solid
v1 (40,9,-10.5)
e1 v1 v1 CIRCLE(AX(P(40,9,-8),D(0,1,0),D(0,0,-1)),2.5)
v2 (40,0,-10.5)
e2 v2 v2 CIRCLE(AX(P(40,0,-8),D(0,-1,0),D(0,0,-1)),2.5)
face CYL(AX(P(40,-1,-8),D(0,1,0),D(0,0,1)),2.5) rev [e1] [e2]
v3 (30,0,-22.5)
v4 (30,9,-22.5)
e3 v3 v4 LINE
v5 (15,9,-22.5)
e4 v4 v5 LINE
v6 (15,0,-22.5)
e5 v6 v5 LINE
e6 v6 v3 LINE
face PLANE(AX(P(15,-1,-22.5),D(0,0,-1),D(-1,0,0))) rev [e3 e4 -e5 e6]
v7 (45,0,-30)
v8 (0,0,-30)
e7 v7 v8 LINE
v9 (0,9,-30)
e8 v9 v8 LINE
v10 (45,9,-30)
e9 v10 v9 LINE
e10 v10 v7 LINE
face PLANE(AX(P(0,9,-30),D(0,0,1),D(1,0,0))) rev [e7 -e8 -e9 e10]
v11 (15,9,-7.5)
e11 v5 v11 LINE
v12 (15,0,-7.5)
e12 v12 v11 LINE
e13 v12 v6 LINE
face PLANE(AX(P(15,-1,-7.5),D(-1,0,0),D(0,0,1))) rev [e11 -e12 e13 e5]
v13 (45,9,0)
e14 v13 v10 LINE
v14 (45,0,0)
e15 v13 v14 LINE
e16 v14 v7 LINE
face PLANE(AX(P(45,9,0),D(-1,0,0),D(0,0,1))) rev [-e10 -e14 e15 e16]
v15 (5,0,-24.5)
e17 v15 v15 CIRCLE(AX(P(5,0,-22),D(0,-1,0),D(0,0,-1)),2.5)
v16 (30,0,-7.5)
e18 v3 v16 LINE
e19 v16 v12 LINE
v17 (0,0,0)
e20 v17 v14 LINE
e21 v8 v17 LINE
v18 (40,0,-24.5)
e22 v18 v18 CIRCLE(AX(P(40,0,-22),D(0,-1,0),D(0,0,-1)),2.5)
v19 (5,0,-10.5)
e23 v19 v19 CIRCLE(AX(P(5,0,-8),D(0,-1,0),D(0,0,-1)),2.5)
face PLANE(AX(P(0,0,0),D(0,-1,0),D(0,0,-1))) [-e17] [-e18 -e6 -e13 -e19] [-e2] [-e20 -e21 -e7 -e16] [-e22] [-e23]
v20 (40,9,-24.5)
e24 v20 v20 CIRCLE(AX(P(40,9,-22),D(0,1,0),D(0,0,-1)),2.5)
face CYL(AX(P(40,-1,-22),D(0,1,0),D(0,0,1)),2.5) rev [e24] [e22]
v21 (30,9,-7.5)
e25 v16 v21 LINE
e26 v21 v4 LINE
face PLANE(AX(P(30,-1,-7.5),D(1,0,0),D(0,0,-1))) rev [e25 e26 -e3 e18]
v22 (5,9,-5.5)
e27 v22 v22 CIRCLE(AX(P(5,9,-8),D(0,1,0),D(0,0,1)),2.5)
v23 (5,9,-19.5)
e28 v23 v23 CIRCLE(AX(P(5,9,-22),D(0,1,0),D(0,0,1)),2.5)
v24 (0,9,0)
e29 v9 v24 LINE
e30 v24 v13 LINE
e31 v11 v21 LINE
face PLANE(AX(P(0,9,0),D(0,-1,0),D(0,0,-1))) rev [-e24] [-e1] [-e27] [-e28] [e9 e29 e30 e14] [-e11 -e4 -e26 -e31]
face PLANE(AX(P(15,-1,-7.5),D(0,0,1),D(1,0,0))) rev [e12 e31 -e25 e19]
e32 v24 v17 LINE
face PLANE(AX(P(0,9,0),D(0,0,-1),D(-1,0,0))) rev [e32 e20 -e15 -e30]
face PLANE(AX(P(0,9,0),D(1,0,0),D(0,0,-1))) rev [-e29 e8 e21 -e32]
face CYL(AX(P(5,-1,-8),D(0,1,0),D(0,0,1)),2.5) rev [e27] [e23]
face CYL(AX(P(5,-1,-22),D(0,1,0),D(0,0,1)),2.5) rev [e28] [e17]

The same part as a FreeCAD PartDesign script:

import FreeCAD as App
import Part
import Sketcher
from FreeCAD import Vector
Q = App.Units.Quantity


def add_polygon(sketch, points):
    """Adds a closed chain of lines whose ends are joined by coincident constraints."""
    first, n = sketch.GeometryCount, len(points)
    for a, b in zip(points, points[1:] + points[:1]):
        sketch.addGeometry(Part.LineSegment(App.Vector(*a, 0), App.Vector(*b, 0)), False)
    for i in range(n):
        sketch.addConstraint(Sketcher.Constraint("Coincident", first + i, 2, first + (i + 1) % n, 1))

doc = App.newDocument("Part")
body = doc.addObject("PartDesign::Body", "Body")

# Sketch on XZ plane
sketch1 = body.newObject("Sketcher::SketchObject", "Sketch")
sketch1.AttachmentSupport = (doc.getObject("XZ_Plane"), [""])
sketch1.MapMode = "FlatFace"
add_polygon(sketch1, [(0, -30), (0, 0), (45, 0), (45, -30)])  # lines 0-3
sketch1.addConstraint([
    Sketcher.Constraint("Vertical", 0),
    Sketcher.Constraint("Horizontal", 1),
    Sketcher.Constraint("Vertical", 2),
    Sketcher.Constraint("Horizontal", 3),
    Sketcher.Constraint("Coincident", 0, 2, -1, 1),
    Sketcher.Constraint("DistanceX", 1, 1, 1, 2, Q("45 mm")),
    Sketcher.Constraint("DistanceY", 0, 1, 0, 2, Q("30 mm")),
])
pad1 = body.newObject("PartDesign::Pad", "Pad")
pad1.Profile = sketch1
pad1.Length = 9
pad1.Reversed = True

# Sketch on XZ plane
sketch2 = body.newObject("Sketcher::SketchObject", "Sketch001")
sketch2.AttachmentSupport = (doc.getObject("XZ_Plane"), [""])
sketch2.MapMode = "FlatFace"
sketch2.AttachmentOffset = App.Placement(Vector(0, 0, -9), App.Rotation())
sketch2.addGeometry(Part.Circle(Vector(5, -22, 0), Vector(0, 0, 1), 2.5), False)  # 0
sketch2.addGeometry(Part.Circle(Vector(5, -8, 0), Vector(0, 0, 1), 2.5), False)  # 1
sketch2.addGeometry(Part.Circle(Vector(40, -8, 0), Vector(0, 0, 1), 2.5), False)  # 2
sketch2.addGeometry(Part.Circle(Vector(40, -22, 0), Vector(0, 0, 1), 2.5), False)  # 3
add_polygon(sketch2, [(15, -22.5), (15, -7.5), (30, -7.5), (30, -22.5)])  # lines 4-7
sketch2.addConstraint([
    Sketcher.Constraint("Vertical", 4),
    Sketcher.Constraint("Horizontal", 5),
    Sketcher.Constraint("Vertical", 6),
    Sketcher.Constraint("Horizontal", 7),
    Sketcher.Constraint("Equal", 0, 1),
    Sketcher.Constraint("Equal", 1, 2),
    Sketcher.Constraint("Equal", 2, 3),
    Sketcher.Constraint("Horizontal", 1, 3, 2, 3),
    Sketcher.Constraint("Horizontal", 0, 3, 3, 3),
    Sketcher.Constraint("Vertical", 0, 3, 1, 3),
    Sketcher.Constraint("Vertical", 2, 3, 3, 3),
    Sketcher.Constraint("Equal", 7, 4),
    Sketcher.Constraint("Diameter", 0, Q("5 mm")),
    Sketcher.Constraint("DistanceX", 5, 1, 5, 2, Q("15 mm")),
    Sketcher.Constraint("DistanceX", -1, 1, 0, 3, Q("5 mm")),
    Sketcher.Constraint("DistanceY", 0, 3, -1, 1, Q("22 mm")),
    Sketcher.Constraint("DistanceY", 1, 3, -1, 1, Q("8 mm")),
    Sketcher.Constraint("DistanceX", -1, 1, 2, 3, Q("40 mm")),
    Sketcher.Constraint("DistanceX", -1, 1, 4, 2, Q("15 mm")),
    Sketcher.Constraint("DistanceY", 4, 2, -1, 1, Q("7.5 mm")),
])
pocket1 = body.newObject("PartDesign::Pocket", "Pocket")
pocket1.Profile = sketch2
pocket1.Length = 10
pocket1.Reversed = True

doc.recompute()
